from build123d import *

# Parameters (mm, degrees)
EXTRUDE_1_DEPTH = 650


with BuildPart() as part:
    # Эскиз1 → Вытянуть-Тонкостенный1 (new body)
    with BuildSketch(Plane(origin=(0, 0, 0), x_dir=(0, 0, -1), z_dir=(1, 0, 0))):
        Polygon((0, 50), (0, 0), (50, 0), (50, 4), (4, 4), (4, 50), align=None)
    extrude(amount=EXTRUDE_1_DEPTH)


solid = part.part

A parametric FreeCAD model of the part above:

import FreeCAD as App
import Part
import Sketcher
Q = App.Units.Quantity

doc = App.newDocument("Part")
body = doc.addObject("PartDesign::Body", "Body")

# Sketch on YZ plane
sketch1 = doc.addObject("Sketcher::SketchObject", "Sketch")
body.addObject(sketch1)
sketch1.AttachmentSupport = (doc.YZ_Plane, [""])
sketch1.MapMode = "FlatFace"
sketch1.addGeometry(Part.LineSegment(App.Vector(50, 0, 0), App.Vector(0, 0, 0)), False)
sketch1.addGeometry(Part.LineSegment(App.Vector(0, 0, 0), App.Vector(0, -50, 0)), False)
sketch1.addGeometry(Part.LineSegment(App.Vector(0, -50, 0), App.Vector(4, -50, 0)), False)
sketch1.addGeometry(Part.LineSegment(App.Vector(4, -50, 0), App.Vector(4, -4, 0)), False)
sketch1.addGeometry(Part.LineSegment(App.Vector(4, -4, 0), App.Vector(50, -4, 0)), False)
sketch1.addGeometry(Part.LineSegment(App.Vector(50, -4, 0), App.Vector(50, 0, 0)), False)
sketch1.addConstraint(Sketcher.Constraint("Coincident", 0, 2, 1, 1))
sketch1.addConstraint(Sketcher.Constraint("Coincident", 1, 2, 2, 1))
sketch1.addConstraint(Sketcher.Constraint("Coincident", 2, 2, 3, 1))
sketch1.addConstraint(Sketcher.Constraint("Coincident", 3, 2, 4, 1))
sketch1.addConstraint(Sketcher.Constraint("Coincident", 4, 2, 5, 1))
sketch1.addConstraint(Sketcher.Constraint("Coincident", 5, 2, 0, 1))
sketch1.addConstraint(Sketcher.Constraint("Horizontal", 0))
sketch1.addConstraint(Sketcher.Constraint("Vertical", 1))
sketch1.addConstraint(Sketcher.Constraint("Horizontal", 2))
sketch1.addConstraint(Sketcher.Constraint("Vertical", 3))
sketch1.addConstraint(Sketcher.Constraint("Horizontal", 4))
sketch1.addConstraint(Sketcher.Constraint("Vertical", 5))
sketch1.addConstraint(Sketcher.Constraint("Coincident", 0, 2, -1, 1))
sketch1.addConstraint(Sketcher.Constraint("Equal", 0, 1))
sketch1.addConstraint(Sketcher.Constraint("Equal", 4, 3))
sketch1.addConstraint(Sketcher.Constraint("DistanceX", 0, 2, 0, 1, Q("50 mm")))
sketch1.addConstraint(Sketcher.Constraint("DistanceX", 2, 1, 2, 2, Q("4 mm")))
pad1 = doc.addObject("PartDesign::Pad", "Pad")
body.addObject(pad1)
pad1.Profile = sketch1
pad1.Length = 650

doc.recompute()
